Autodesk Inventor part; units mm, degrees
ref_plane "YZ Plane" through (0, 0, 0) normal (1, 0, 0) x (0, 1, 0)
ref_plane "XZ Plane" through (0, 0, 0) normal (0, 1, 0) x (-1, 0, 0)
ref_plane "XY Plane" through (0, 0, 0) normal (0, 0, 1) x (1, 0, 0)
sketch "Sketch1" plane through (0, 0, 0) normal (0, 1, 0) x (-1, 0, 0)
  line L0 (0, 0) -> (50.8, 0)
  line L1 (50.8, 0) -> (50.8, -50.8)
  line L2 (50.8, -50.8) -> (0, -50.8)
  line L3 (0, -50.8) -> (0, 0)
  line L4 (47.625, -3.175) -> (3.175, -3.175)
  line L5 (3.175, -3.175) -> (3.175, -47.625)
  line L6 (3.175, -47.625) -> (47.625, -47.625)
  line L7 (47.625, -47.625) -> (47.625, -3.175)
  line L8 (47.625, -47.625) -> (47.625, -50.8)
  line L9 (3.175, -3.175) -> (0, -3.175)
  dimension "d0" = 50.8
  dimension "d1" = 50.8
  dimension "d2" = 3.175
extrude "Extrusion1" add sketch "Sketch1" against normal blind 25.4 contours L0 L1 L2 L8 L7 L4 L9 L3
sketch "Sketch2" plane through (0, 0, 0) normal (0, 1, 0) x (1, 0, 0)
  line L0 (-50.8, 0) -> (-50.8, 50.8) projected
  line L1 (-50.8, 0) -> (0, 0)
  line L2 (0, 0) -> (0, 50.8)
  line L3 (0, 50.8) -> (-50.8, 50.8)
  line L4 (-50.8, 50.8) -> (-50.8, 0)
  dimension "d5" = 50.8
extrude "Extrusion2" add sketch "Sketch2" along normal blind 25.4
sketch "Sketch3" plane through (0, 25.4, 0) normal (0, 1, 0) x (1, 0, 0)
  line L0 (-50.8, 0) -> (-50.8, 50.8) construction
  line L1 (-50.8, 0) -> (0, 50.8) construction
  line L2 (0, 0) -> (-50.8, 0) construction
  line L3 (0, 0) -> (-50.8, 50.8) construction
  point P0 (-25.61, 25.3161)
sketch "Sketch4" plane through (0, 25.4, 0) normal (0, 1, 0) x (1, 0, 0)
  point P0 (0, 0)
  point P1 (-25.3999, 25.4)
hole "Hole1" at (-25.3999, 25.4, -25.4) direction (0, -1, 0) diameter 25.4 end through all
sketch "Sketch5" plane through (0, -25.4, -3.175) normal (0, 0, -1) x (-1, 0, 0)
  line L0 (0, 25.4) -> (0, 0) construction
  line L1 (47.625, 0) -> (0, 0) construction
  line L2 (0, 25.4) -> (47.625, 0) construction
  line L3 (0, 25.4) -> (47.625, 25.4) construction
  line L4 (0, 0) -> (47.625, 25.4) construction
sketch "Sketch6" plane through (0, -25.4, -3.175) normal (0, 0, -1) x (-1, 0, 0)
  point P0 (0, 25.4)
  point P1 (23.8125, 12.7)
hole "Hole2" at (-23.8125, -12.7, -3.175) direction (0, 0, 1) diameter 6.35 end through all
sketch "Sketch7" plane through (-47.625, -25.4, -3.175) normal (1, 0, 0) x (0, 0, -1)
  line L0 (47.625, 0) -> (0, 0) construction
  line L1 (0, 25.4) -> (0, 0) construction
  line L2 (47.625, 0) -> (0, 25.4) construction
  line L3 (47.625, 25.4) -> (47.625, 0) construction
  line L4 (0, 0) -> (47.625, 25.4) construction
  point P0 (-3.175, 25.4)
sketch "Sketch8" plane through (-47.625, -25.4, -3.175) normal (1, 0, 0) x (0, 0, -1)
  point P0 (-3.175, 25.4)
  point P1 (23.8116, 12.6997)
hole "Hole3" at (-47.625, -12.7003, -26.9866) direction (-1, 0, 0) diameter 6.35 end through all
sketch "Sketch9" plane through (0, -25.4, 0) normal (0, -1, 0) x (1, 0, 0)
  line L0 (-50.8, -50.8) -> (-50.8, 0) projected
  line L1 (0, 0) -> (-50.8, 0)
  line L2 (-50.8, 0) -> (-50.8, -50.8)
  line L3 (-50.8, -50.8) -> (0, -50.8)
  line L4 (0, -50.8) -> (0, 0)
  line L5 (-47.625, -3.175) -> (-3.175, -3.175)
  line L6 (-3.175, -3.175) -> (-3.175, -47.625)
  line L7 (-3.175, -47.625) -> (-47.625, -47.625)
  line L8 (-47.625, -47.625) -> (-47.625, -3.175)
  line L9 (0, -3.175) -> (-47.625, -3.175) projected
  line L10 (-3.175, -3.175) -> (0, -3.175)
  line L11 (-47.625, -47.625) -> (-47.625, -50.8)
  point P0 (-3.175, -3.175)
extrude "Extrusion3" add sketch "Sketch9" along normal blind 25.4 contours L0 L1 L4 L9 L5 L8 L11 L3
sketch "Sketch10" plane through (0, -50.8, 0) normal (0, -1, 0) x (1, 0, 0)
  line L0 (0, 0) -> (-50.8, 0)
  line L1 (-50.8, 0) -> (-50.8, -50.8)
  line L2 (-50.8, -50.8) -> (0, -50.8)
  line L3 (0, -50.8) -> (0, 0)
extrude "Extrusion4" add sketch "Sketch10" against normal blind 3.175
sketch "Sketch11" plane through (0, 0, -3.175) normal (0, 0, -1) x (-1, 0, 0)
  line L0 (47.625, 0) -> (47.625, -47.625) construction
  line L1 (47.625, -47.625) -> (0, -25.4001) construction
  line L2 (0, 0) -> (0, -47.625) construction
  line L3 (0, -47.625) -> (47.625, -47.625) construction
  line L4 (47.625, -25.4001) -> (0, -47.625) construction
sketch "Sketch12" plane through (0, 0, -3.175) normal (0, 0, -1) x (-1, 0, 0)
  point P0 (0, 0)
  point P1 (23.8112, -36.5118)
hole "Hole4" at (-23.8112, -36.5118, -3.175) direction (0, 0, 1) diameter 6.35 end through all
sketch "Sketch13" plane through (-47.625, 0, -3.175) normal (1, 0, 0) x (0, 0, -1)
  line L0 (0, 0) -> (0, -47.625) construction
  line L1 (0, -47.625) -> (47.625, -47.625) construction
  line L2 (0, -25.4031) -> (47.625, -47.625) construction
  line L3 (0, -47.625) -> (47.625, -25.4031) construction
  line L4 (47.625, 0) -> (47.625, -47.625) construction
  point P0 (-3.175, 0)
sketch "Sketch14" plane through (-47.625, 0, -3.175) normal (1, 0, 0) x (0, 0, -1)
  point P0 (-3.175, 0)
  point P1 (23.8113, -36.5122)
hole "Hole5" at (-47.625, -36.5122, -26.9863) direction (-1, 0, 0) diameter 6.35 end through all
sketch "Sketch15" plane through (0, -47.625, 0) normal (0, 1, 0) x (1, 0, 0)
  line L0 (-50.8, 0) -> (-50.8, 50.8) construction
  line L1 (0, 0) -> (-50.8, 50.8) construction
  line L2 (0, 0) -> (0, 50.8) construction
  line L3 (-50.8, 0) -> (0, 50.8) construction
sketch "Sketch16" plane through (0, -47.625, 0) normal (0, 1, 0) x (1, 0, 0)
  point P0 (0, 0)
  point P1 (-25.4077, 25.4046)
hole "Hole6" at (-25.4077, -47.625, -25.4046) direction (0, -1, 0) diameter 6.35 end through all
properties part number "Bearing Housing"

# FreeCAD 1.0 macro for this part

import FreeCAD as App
import Part
import Sketcher
from FreeCAD import Vector
Q = App.Units.Quantity

doc = App.newDocument("Part")
body = doc.addObject("PartDesign::Body", "Body")

# Sketch on XZ plane
sketch1 = body.newObject("Sketcher::SketchObject", "Sketch")
sketch1.AttachmentSupport = (doc.getObject("XZ_Plane"), [""])
sketch1.MapMode = "FlatFace"
sketch1.addGeometry([
    Part.LineSegment(Vector(-50.8, 0, 0), Vector(0, 0, 0)),  # 0
    Part.LineSegment(Vector(0, 0, 0), Vector(0, -3.2, 0)),  # 1
    Part.LineSegment(Vector(0, -3.2, 0), Vector(-47.6, -3.2, 0)),  # 2
    Part.LineSegment(Vector(-47.6, -3.2, 0), Vector(-47.6, -50.8, 0)),  # 3
    Part.LineSegment(Vector(-47.6, -50.8, 0), Vector(-50.8, -50.8, 0)),  # 4
    Part.LineSegment(Vector(-50.8, -50.8, 0), Vector(-50.8, 0, 0)),  # 5
], False)
sketch1.addConstraint([
    Sketcher.Constraint("Coincident", 0, 2, 1, 1),
    Sketcher.Constraint("Coincident", 1, 2, 2, 1),
    Sketcher.Constraint("Coincident", 2, 2, 3, 1),
    Sketcher.Constraint("Coincident", 3, 2, 4, 1),
    Sketcher.Constraint("Coincident", 4, 2, 5, 1),
    Sketcher.Constraint("Coincident", 5, 2, 0, 1),
    Sketcher.Constraint("Horizontal", 0),
    Sketcher.Constraint("Vertical", 1),
    Sketcher.Constraint("Horizontal", 2),
    Sketcher.Constraint("Vertical", 3),
    Sketcher.Constraint("Horizontal", 4),
    Sketcher.Constraint("Vertical", 5),
    Sketcher.Constraint("Coincident", 0, 2, -1, 1),
    Sketcher.Constraint("Equal", 4, 1),
    Sketcher.Constraint("Equal", 2, 3),
    Sketcher.Constraint("DistanceX", 0, 1, 0, 2, Q("2 in")),
    Sketcher.Constraint("DistanceX", 4, 2, 4, 1, Q("0.125 in")),
])
pad1 = body.newObject("PartDesign::Pad", "Pad")
pad1.Profile = sketch1
pad1.Length = Q("1 in")

# Sketch on XZ plane
sketch2 = body.newObject("Sketcher::SketchObject", "Sketch001")
sketch2.AttachmentSupport = (doc.getObject("XZ_Plane"), [""])
sketch2.MapMode = "FlatFace"
sketch2.addGeometry([
    Part.LineSegment(Vector(-51, -51, 0), Vector(-51, 0, 0)),
    Part.LineSegment(Vector(-51, 0, 0), Vector(0, 0, 0)),
    Part.LineSegment(Vector(0, 0, 0), Vector(0, -51, 0)),
    Part.LineSegment(Vector(0, -51, 0), Vector(-51, -51, 0)),
], False)
sketch2.addConstraint([
    Sketcher.Constraint("Coincident", 0, 2, 1, 1),
    Sketcher.Constraint("Coincident", 1, 2, 2, 1),
    Sketcher.Constraint("Coincident", 2, 2, 3, 1),
    Sketcher.Constraint("Coincident", 3, 2, 0, 1),
    Sketcher.Constraint("Vertical", 0),
    Sketcher.Constraint("Horizontal", 1),
    Sketcher.Constraint("Vertical", 2),
    Sketcher.Constraint("Horizontal", 3),
    Sketcher.Constraint("Coincident", 1, 2, -1, 1),
    Sketcher.Constraint("Equal", 3, 0),
    Sketcher.Constraint("DistanceX", 1, 1, 1, 2, Q("2 in")),
])
pad2 = body.newObject("PartDesign::Pad", "Pad001")
pad2.Profile = sketch2
pad2.Length = Q("1 in")
pad2.Reversed = True

# Sketch on XZ plane
sketch3 = body.newObject("Sketcher::SketchObject", "Sketch002")
sketch3.AttachmentSupport = (doc.getObject("XZ_Plane"), [""])
sketch3.MapMode = "FlatFace"
sketch3.AttachmentOffset = App.Placement(Vector(0, 0, -1 * 25.4), App.Rotation())
sketch3.addGeometry(Part.Circle(Vector(-25, -25, 0), Vector(0, 0, 1), 13), False)
sketch3.addConstraint([
    Sketcher.Constraint("Diameter", 0, Q("1 in")),
    Sketcher.Constraint("DistanceX", 0, 3, -1, 1, Q("1 in")),
    Sketcher.Constraint("DistanceY", 0, 3, -1, 1, Q("1 in")),
])
doc.recompute()
hole = body.newObject("PartDesign::Hole", "Hole")
hole.Profile = sketch3
hole.ThreadType = "None"
hole.Diameter = Q("1 in")
hole.DepthType = "ThroughAll"
hole.Reversed = True

# Sketch on XY plane
sketch4 = body.newObject("Sketcher::SketchObject", "Sketch003")
sketch4.AttachmentSupport = (doc.getObject("XY_Plane"), [""])
sketch4.MapMode = "FlatFace"
sketch4.AttachmentOffset = App.Placement(Vector(0, 0, -0.125 * 25.4), App.Rotation())
sketch4.addGeometry(Part.Circle(Vector(-23.8, -12.7, 0), Vector(0, 0, 1), 3.2), False)
sketch4.addConstraint([
    Sketcher.Constraint("Diameter", 0, Q("0.25 in")),
    Sketcher.Constraint("DistanceY", 0, 3, -1, 1, Q("0.5 in")),
    Sketcher.Constraint("DistanceX", 0, 3, -1, 1, Q("0.9375 in")),
])
doc.recompute()
hole2 = body.newObject("PartDesign::Hole", "Hole001")
hole2.Profile = sketch4
hole2.ThreadType = "None"
hole2.Diameter = Q("0.25 in")
hole2.DepthType = "ThroughAll"
hole2.Reversed = True

# Sketch on YZ plane
sketch5 = body.newObject("Sketcher::SketchObject", "Sketch004")
sketch5.AttachmentSupport = (doc.getObject("YZ_Plane"), [""])
sketch5.MapMode = "FlatFace"
sketch5.AttachmentOffset = App.Placement(Vector(0, 0, -1.875 * 25.4), App.Rotation())
sketch5.addGeometry(Part.Circle(Vector(-12.7, -27, 0), Vector(0, 0, 1), 3.2), False)
sketch5.addConstraint([
    Sketcher.Constraint("Diameter", 0, Q("0.25 in")),
    Sketcher.Constraint("DistanceX", 0, 3, -1, 1, Q("0.5 in")),
    Sketcher.Constraint("DistanceY", 0, 3, -1, 1, Q("26.9866 mm")),
])
doc.recompute()
hole3 = body.newObject("PartDesign::Hole", "Hole002")
hole3.Profile = sketch5
hole3.ThreadType = "None"
hole3.Diameter = Q("0.25 in")
hole3.DepthType = "ThroughAll"

# Sketch on XZ plane
sketch6 = body.newObject("Sketcher::SketchObject", "Sketch005")
sketch6.AttachmentSupport = (doc.getObject("XZ_Plane"), [""])
sketch6.MapMode = "FlatFace"
sketch6.AttachmentOffset = App.Placement(Vector(0, 0, 1 * 25.4), App.Rotation())
sketch6.addGeometry([
    Part.LineSegment(Vector(-50.8, 0, 0), Vector(-50.8, -50.8, 0)),  # 0
    Part.LineSegment(Vector(-50.8, -50.8, 0), Vector(-47.6, -50.8, 0)),  # 1
    Part.LineSegment(Vector(-47.6, -50.8, 0), Vector(-47.6, -3.2, 0)),  # 2
    Part.LineSegment(Vector(-47.6, -3.2, 0), Vector(0, -3.2, 0)),  # 3
    Part.LineSegment(Vector(0, -3.2, 0), Vector(0, 0, 0)),  # 4
    Part.LineSegment(Vector(0, 0, 0), Vector(-50.8, 0, 0)),  # 5
], False)
sketch6.addConstraint([
    Sketcher.Constraint("Coincident", 0, 2, 1, 1),
    Sketcher.Constraint("Coincident", 1, 2, 2, 1),
    Sketcher.Constraint("Coincident", 2, 2, 3, 1),
    Sketcher.Constraint("Coincident", 3, 2, 4, 1),
    Sketcher.Constraint("Coincident", 4, 2, 5, 1),
    Sketcher.Constraint("Coincident", 5, 2, 0, 1),
    Sketcher.Constraint("Vertical", 0),
    Sketcher.Constraint("Horizontal", 1),
    Sketcher.Constraint("Vertical", 2),
    Sketcher.Constraint("Horizontal", 3),
    Sketcher.Constraint("Vertical", 4),
    Sketcher.Constraint("Horizontal", 5),
    Sketcher.Constraint("Coincident", 4, 2, -1, 1),
    Sketcher.Constraint("Equal", 5, 0),
    Sketcher.Constraint("Equal", 3, 2),
    Sketcher.Constraint("DistanceX", 5, 2, 5, 1, Q("2 in")),
    Sketcher.Constraint("DistanceX", 1, 1, 1, 2, Q("0.125 in")),
])
pad3 = body.newObject("PartDesign::Pad", "Pad002")
pad3.Profile = sketch6
pad3.Length = Q("1 in")

# Sketch on XZ plane
sketch7 = body.newObject("Sketcher::SketchObject", "Sketch006")
sketch7.AttachmentSupport = (doc.getObject("XZ_Plane"), [""])
sketch7.MapMode = "FlatFace"
sketch7.AttachmentOffset = App.Placement(Vector(0, 0, 2 * 25.4), App.Rotation())
sketch7.addGeometry([
    Part.LineSegment(Vector(0, -51, 0), Vector(0, 0, 0)),
    Part.LineSegment(Vector(0, 0, 0), Vector(-51, 0, 0)),
    Part.LineSegment(Vector(-51, 0, 0), Vector(-51, -51, 0)),
    Part.LineSegment(Vector(-51, -51, 0), Vector(0, -51, 0)),
], False)
sketch7.addConstraint([
    Sketcher.Constraint("Coincident", 0, 2, 1, 1),
    Sketcher.Constraint("Coincident", 1, 2, 2, 1),
    Sketcher.Constraint("Coincident", 2, 2, 3, 1),
    Sketcher.Constraint("Coincident", 3, 2, 0, 1),
    Sketcher.Constraint("Vertical", 0),
    Sketcher.Constraint("Horizontal", 1),
    Sketcher.Constraint("Vertical", 2),
    Sketcher.Constraint("Horizontal", 3),
    Sketcher.Constraint("Coincident", 0, 2, -1, 1),
    Sketcher.Constraint("Equal", 3, 0),
    Sketcher.Constraint("DistanceX", 1, 2, 1, 1, Q("2 in")),
])
pad4 = body.newObject("PartDesign::Pad", "Pad003")
pad4.Profile = sketch7
pad4.Length = Q("0.125 in")
pad4.Reversed = True

# Sketch on XY plane
sketch8 = body.newObject("Sketcher::SketchObject", "Sketch007")
sketch8.AttachmentSupport = (doc.getObject("XY_Plane"), [""])
sketch8.MapMode = "FlatFace"
sketch8.AttachmentOffset = App.Placement(Vector(0, 0, -0.125 * 25.4), App.Rotation())
sketch8.addGeometry(Part.Circle(Vector(-23.8, -36.5, 0), Vector(0, 0, 1), 3.2), False)
sketch8.addConstraint([
    Sketcher.Constraint("Diameter", 0, Q("0.25 in")),
    Sketcher.Constraint("DistanceX", 0, 3, -1, 1, Q("23.8112 mm")),
    Sketcher.Constraint("DistanceY", 0, 3, -1, 1, Q("36.5118 mm")),
])
doc.recompute()
hole4 = body.newObject("PartDesign::Hole", "Hole003")
hole4.Profile = sketch8
hole4.ThreadType = "None"
hole4.Diameter = Q("0.25 in")
hole4.DepthType = "ThroughAll"
hole4.Reversed = True

# Sketch on YZ plane
sketch9 = body.newObject("Sketcher::SketchObject", "Sketch008")
sketch9.AttachmentSupport = (doc.getObject("YZ_Plane"), [""])
sketch9.MapMode = "FlatFace"
sketch9.AttachmentOffset = App.Placement(Vector(0, 0, -1.875 * 25.4), App.Rotation())
sketch9.addGeometry(Part.Circle(Vector(-36.5, -27, 0), Vector(0, 0, 1), 3.2), False)
sketch9.addConstraint([
    Sketcher.Constraint("Diameter", 0, Q("0.25 in")),
    Sketcher.Constraint("DistanceX", 0, 3, -1, 1, Q("1.4375 in")),
    Sketcher.Constraint("DistanceY", 0, 3, -1, 1, Q("26.9863 mm")),
])
doc.recompute()
hole5 = body.newObject("PartDesign::Hole", "Hole004")
hole5.Profile = sketch9
hole5.ThreadType = "None"
hole5.Diameter = Q("0.25 in")
hole5.DepthType = "ThroughAll"

# Sketch on XZ plane
sketch10 = body.newObject("Sketcher::SketchObject", "Sketch009")
sketch10.AttachmentSupport = (doc.getObject("XZ_Plane"), [""])
sketch10.MapMode = "FlatFace"
sketch10.AttachmentOffset = App.Placement(Vector(0, 0, 1.875 * 25.4), App.Rotation())
sketch10.addGeometry(Part.Circle(Vector(-25.4, -25.4, 0), Vector(0, 0, 1), 3.2), False)
sketch10.addConstraint([
    Sketcher.Constraint("Diameter", 0, Q("0.25 in")),
    Sketcher.Constraint("DistanceX", 0, 3, -1, 1, Q("1.0003 in")),
    Sketcher.Constraint("DistanceY", 0, 3, -1, 1, Q("25.4046 mm")),
])
doc.recompute()
hole6 = body.newObject("PartDesign::Hole", "Hole005")
hole6.Profile = sketch10
hole6.ThreadType = "None"
hole6.Diameter = Q("0.25 in")
hole6.DepthType = "ThroughAll"
hole6.Reversed = True

doc.recompute()
